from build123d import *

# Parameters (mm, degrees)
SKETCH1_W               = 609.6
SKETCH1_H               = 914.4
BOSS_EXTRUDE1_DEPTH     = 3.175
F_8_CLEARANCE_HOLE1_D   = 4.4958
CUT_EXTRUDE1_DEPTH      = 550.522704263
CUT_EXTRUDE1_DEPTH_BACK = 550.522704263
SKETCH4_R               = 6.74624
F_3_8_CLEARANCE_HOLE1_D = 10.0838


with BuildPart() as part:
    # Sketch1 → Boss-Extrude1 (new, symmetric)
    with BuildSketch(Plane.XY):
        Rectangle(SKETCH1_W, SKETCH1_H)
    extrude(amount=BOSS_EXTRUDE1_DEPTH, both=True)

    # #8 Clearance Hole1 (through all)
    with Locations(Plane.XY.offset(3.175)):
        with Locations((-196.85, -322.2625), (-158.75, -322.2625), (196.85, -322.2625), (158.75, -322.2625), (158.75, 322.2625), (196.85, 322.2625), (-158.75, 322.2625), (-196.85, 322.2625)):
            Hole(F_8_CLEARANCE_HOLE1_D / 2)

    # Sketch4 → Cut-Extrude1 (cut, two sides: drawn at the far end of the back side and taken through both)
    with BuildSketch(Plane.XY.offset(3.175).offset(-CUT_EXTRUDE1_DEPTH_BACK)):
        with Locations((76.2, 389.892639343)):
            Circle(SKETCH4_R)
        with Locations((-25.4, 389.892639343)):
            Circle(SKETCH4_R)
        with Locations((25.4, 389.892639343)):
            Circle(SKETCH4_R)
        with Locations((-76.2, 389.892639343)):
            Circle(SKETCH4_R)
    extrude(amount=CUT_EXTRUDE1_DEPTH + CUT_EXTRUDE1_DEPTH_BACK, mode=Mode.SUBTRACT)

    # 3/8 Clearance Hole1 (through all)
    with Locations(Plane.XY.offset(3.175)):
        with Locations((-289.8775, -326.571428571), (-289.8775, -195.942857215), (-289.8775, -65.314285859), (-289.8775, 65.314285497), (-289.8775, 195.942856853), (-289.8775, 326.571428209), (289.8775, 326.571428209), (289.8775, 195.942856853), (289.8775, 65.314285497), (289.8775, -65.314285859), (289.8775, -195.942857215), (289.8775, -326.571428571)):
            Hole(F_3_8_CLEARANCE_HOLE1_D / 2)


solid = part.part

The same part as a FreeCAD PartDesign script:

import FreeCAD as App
import Part
import Sketcher
from FreeCAD import Vector
Q = App.Units.Quantity


def add_polygon(sketch, points):
    """Adds a closed chain of lines whose ends are joined by coincident constraints."""
    first, n = sketch.GeometryCount, len(points)
    for a, b in zip(points, points[1:] + points[:1]):
        sketch.addGeometry(Part.LineSegment(App.Vector(*a, 0), App.Vector(*b, 0)), False)
    for i in range(n):
        sketch.addConstraint(Sketcher.Constraint("Coincident", first + i, 2, first + (i + 1) % n, 1))

doc = App.newDocument("Part")
body = doc.addObject("PartDesign::Body", "Body")

# Sketch on XY plane
sketch1 = body.newObject("Sketcher::SketchObject", "Sketch")
sketch1.AttachmentSupport = (doc.getObject("XY_Plane"), [""])
sketch1.MapMode = "FlatFace"
add_polygon(sketch1, [(-305, 457), (-305, -457), (305, -457), (305, 457)])  # lines 0-3
sketch1.addConstraint([
    Sketcher.Constraint("Vertical", 0),
    Sketcher.Constraint("Horizontal", 1),
    Sketcher.Constraint("Vertical", 2),
    Sketcher.Constraint("Horizontal", 3),
    Sketcher.Constraint("Symmetric", 0, 2, 2, 2, -1, 1),
    Sketcher.Constraint("DistanceX", 1, 1, 1, 2, Q("24 in")),
    Sketcher.Constraint("DistanceY", 0, 2, 0, 1, Q("36 in")),
])
pad1 = body.newObject("PartDesign::Pad", "Pad")
pad1.Profile = sketch1
pad1.Length = Q("0.25 in")
pad1.Midplane = True

# Sketch on XY plane
sketch2 = body.newObject("Sketcher::SketchObject", "Sketch001")
sketch2.AttachmentSupport = (doc.getObject("XY_Plane"), [""])
sketch2.MapMode = "FlatFace"
sketch2.AttachmentOffset = App.Placement(Vector(0, 0, 0.125 * 25.4), App.Rotation())
sketch2.addGeometry([
    Part.Circle(Vector(-196.8, -322.3, 0), Vector(0, 0, 1), 2.2),  # 0
    Part.Circle(Vector(-158.8, -322.3, 0), Vector(0, 0, 1), 2.2),  # 1
    Part.Circle(Vector(196.8, -322.3, 0), Vector(0, 0, 1), 2.2),  # 2
    Part.Circle(Vector(158.8, -322.3, 0), Vector(0, 0, 1), 2.2),  # 3
    Part.Circle(Vector(158.8, 322.3, 0), Vector(0, 0, 1), 2.2),  # 4
    Part.Circle(Vector(196.8, 322.3, 0), Vector(0, 0, 1), 2.2),  # 5
    Part.Circle(Vector(-158.8, 322.3, 0), Vector(0, 0, 1), 2.2),  # 6
    Part.Circle(Vector(-196.8, 322.3, 0), Vector(0, 0, 1), 2.2),  # 7
], False)
sketch2.addConstraint([
    Sketcher.Constraint("Equal", 0, 1),
    Sketcher.Constraint("Equal", 1, 2),
    Sketcher.Constraint("Equal", 2, 3),
    Sketcher.Constraint("Equal", 3, 4),
    Sketcher.Constraint("Equal", 4, 5),
    Sketcher.Constraint("Equal", 5, 6),
    Sketcher.Constraint("Equal", 6, 7),
    Sketcher.Constraint("Symmetric", 1, 3, 4, 3, -1, 1),
    Sketcher.Constraint("Symmetric", 0, 3, 5, 3, -1, 1),
    Sketcher.Constraint("Symmetric", 3, 3, 6, 3, -1, 1),
    Sketcher.Constraint("Symmetric", 2, 3, 7, 3, -1, 1),
    Sketcher.Constraint("Symmetric", 0, 3, 2, 3, -2),
    Sketcher.Constraint("Symmetric", 1, 3, 3, 3, -2),
    Sketcher.Constraint("Horizontal", 0, 3, 1, 3),
    Sketcher.Constraint("Diameter", 0, Q("0.177 in")),
    Sketcher.Constraint("DistanceX", 1, 3, 2, 3, Q("14 in")),
    Sketcher.Constraint("DistanceX", 0, 3, 1, 3, Q("1.5 in")),
    Sketcher.Constraint("DistanceY", 0, 3, -1, 1, Q("12.6875 in")),
])
doc.recompute()
hole = body.newObject("PartDesign::Hole", "Hole")
hole.Profile = sketch2
hole.ThreadType = "None"
hole.Diameter = Q("0.177 in")
hole.DepthType = "ThroughAll"

# Sketch on XY plane
sketch3 = body.newObject("Sketcher::SketchObject", "Sketch002")
sketch3.AttachmentSupport = (doc.getObject("XY_Plane"), [""])
sketch3.MapMode = "FlatFace"
sketch3.AttachmentOffset = App.Placement(Vector(0, 0, 0.125 * 25.4), App.Rotation())
sketch3.addGeometry([
    Part.Circle(Vector(76, 390, 0), Vector(0, 0, 1), 7),
    Part.Circle(Vector(-25, 390, 0), Vector(0, 0, 1), 7),
    Part.Circle(Vector(25, 390, 0), Vector(0, 0, 1), 7),
    Part.Circle(Vector(-76, 390, 0), Vector(0, 0, 1), 7),
], False)
sketch3.addConstraint([
    Sketcher.Constraint("Equal", 0, 1),
    Sketcher.Constraint("Equal", 1, 2),
    Sketcher.Constraint("Equal", 2, 3),
    Sketcher.Constraint("Symmetric", 1, 3, 2, 3, -2),
    Sketcher.Constraint("Symmetric", 0, 3, 3, 3, -2),
    Sketcher.Constraint("Horizontal", 0, 3, 1, 3),
    Sketcher.Constraint("DistanceX", -1, 1, 0, 3, Q("3 in")),
    Sketcher.Constraint("DistanceX", 1, 3, -1, 1, Q("1 in")),
    Sketcher.Constraint("Diameter", 0, Q("0.5312 in")),
    Sketcher.Constraint("DistanceY", -1, 1, 0, 3, Q("389.892639 mm")),
])
pocket1 = body.newObject("PartDesign::Pocket", "Pocket")
pocket1.Profile = sketch3
pocket1.Type = "ThroughAll"
pocket1.Midplane = True

# Sketch on XY plane
sketch4 = body.newObject("Sketcher::SketchObject", "Sketch003")
sketch4.AttachmentSupport = (doc.getObject("XY_Plane"), [""])
sketch4.MapMode = "FlatFace"
sketch4.AttachmentOffset = App.Placement(Vector(0, 0, 0.125 * 25.4), App.Rotation())
sketch4.addGeometry([
    Part.Circle(Vector(-290, -327, 0), Vector(0, 0, 1), 5),  # 0
    Part.Circle(Vector(-290, -196, 0), Vector(0, 0, 1), 5),  # 1
    Part.Circle(Vector(-290, -65, 0), Vector(0, 0, 1), 5),  # 2
    Part.Circle(Vector(-290, 65, 0), Vector(0, 0, 1), 5),  # 3
    Part.Circle(Vector(-290, 196, 0), Vector(0, 0, 1), 5),  # 4
    Part.Circle(Vector(-290, 327, 0), Vector(0, 0, 1), 5),  # 5
    Part.Circle(Vector(290, 327, 0), Vector(0, 0, 1), 5),  # 6
    Part.Circle(Vector(290, 196, 0), Vector(0, 0, 1), 5),  # 7
    Part.Circle(Vector(290, 65, 0), Vector(0, 0, 1), 5),  # 8
    Part.Circle(Vector(290, -65, 0), Vector(0, 0, 1), 5),  # 9
    Part.Circle(Vector(290, -196, 0), Vector(0, 0, 1), 5),  # 10
    Part.Circle(Vector(290, -327, 0), Vector(0, 0, 1), 5),  # 11
], False)
sketch4.addConstraint([
    Sketcher.Constraint("Equal", 0, 1),
    Sketcher.Constraint("Equal", 1, 2),
    Sketcher.Constraint("Equal", 2, 3),
    Sketcher.Constraint("Equal", 3, 4),
    Sketcher.Constraint("Equal", 4, 5),
    Sketcher.Constraint("Equal", 5, 6),
    Sketcher.Constraint("Equal", 6, 7),
    Sketcher.Constraint("Equal", 7, 8),
    Sketcher.Constraint("Equal", 8, 9),
    Sketcher.Constraint("Equal", 9, 10),
    Sketcher.Constraint("Equal", 10, 11),
    Sketcher.Constraint("Symmetric", 0, 3, 6, 3, -1, 1),
    Sketcher.Constraint("Symmetric", 1, 3, 7, 3, -1, 1),
    Sketcher.Constraint("Symmetric", 2, 3, 8, 3, -1, 1),
    Sketcher.Constraint("Symmetric", 3, 3, 9, 3, -1, 1),
    Sketcher.Constraint("Symmetric", 4, 3, 10, 3, -1, 1),
    Sketcher.Constraint("Symmetric", 5, 3, 11, 3, -1, 1),
    Sketcher.Constraint("Symmetric", 5, 3, 6, 3, -2),
    Sketcher.Constraint("Symmetric", 4, 3, 7, 3, -2),
    Sketcher.Constraint("Symmetric", 3, 3, 8, 3, -2),
    Sketcher.Constraint("Vertical", 0, 3, 1, 3),
    Sketcher.Constraint("Vertical", 1, 3, 2, 3),
    Sketcher.Constraint("Diameter", 0, Q("0.397 in")),
    Sketcher.Constraint("DistanceX", 5, 3, 6, 3, Q("22.825 in")),
    Sketcher.Constraint("DistanceY", 0, 3, -1, 1, Q("326.571429 mm")),
    Sketcher.Constraint("DistanceY", 0, 3, 1, 3, Q("130.628571 mm")),
    Sketcher.Constraint("DistanceY", 1, 3, 2, 3, Q("130.628571 mm")),
])
doc.recompute()
hole2 = body.newObject("PartDesign::Hole", "Hole001")
hole2.Profile = sketch4
hole2.ThreadType = "None"
hole2.Diameter = Q("0.397 in")
hole2.DepthType = "ThroughAll"

doc.recompute()
